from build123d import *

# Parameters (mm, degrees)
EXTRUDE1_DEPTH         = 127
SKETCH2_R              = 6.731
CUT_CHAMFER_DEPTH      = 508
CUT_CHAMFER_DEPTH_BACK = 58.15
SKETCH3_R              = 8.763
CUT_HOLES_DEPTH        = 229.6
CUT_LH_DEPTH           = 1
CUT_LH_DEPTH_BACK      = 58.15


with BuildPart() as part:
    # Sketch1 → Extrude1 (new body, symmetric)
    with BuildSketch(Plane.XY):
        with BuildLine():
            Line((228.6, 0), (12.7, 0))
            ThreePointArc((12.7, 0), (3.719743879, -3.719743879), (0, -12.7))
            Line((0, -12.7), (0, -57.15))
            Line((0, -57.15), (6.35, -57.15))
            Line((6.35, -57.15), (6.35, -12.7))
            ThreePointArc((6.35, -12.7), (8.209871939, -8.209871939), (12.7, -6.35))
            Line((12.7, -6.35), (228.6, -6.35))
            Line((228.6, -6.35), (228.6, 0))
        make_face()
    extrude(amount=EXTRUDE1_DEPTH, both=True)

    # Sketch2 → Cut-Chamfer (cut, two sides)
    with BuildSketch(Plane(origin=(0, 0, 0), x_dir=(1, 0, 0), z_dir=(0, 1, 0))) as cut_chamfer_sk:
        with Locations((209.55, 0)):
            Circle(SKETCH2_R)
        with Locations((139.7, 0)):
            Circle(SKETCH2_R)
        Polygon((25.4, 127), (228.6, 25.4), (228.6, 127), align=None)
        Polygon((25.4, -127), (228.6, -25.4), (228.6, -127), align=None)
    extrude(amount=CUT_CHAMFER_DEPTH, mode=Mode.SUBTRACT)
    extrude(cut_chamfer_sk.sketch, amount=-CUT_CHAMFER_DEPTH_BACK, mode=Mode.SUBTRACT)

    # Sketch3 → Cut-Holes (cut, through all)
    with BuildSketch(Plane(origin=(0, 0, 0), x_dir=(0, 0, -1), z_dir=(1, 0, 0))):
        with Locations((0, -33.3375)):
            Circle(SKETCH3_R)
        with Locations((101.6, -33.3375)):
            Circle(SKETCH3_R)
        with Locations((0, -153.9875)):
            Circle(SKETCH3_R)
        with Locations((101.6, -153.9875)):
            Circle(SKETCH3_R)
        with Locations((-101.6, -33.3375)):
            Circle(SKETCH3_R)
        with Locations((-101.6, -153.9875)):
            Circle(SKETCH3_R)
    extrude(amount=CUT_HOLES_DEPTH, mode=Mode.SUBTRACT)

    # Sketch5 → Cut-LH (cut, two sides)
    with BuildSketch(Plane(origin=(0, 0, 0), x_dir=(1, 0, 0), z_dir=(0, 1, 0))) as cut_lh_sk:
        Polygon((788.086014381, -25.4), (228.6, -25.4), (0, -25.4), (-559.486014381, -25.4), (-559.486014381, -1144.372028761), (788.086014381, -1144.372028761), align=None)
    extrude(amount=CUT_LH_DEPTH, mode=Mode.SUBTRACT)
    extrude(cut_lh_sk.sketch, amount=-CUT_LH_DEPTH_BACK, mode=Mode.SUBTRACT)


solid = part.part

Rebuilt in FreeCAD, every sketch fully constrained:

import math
import FreeCAD as App
import Part
import Sketcher

V = App.Vector
Q = App.Units.Quantity

doc = App.newDocument("Part")
body = doc.addObject("PartDesign::Body", "Body")

# Sketch on XY plane
sketch1 = body.newObject("Sketcher::SketchObject", "Sketch")
sketch1.AttachmentSupport = (doc.getObject("XY_Plane"), [""])
sketch1.MapMode = "FlatFace"
sketch1.addGeometry(Part.LineSegment(V(228.6, 0, 0), V(12.7, 0, 0)), False)
sketch1.addGeometry(Part.ArcOfCircle(Part.Circle(V(12.7, -12.7, 0), V(0, 0, 1), 12.7), math.radians(90), math.radians(180)), False)
sketch1.addGeometry(Part.LineSegment(V(0, -12.7, 0), V(0, -57.15, 0)), False)
sketch1.addGeometry(Part.LineSegment(V(0, -57.15, 0), V(6.35, -57.15, 0)), False)
sketch1.addGeometry(Part.LineSegment(V(6.35, -57.15, 0), V(6.35, -12.7, 0)), False)
sketch1.addGeometry(Part.ArcOfCircle(Part.Circle(V(12.7, -12.7, 0), V(0, 0, 1), 6.35), math.radians(90), math.radians(180)), False)
sketch1.addGeometry(Part.LineSegment(V(12.7, -6.35, 0), V(228.6, -6.35, 0)), False)
sketch1.addGeometry(Part.LineSegment(V(228.6, -6.35, 0), V(228.6, 0, 0)), False)
sketch1.addConstraint(Sketcher.Constraint("Tangent", 0, 2, 1, 1))
sketch1.addConstraint(Sketcher.Constraint("Tangent", 1, 2, 2, 1))
sketch1.addConstraint(Sketcher.Constraint("Coincident", 2, 2, 3, 1))
sketch1.addConstraint(Sketcher.Constraint("Coincident", 3, 2, 4, 1))
sketch1.addConstraint(Sketcher.Constraint("Tangent", 4, 2, 5, 2))
sketch1.addConstraint(Sketcher.Constraint("Tangent", 5, 1, 6, 1))
sketch1.addConstraint(Sketcher.Constraint("Coincident", 6, 2, 7, 1))
sketch1.addConstraint(Sketcher.Constraint("Coincident", 7, 2, 0, 1))
sketch1.addConstraint(Sketcher.Constraint("Horizontal", 0))
sketch1.addConstraint(Sketcher.Constraint("Vertical", 2))
sketch1.addConstraint(Sketcher.Constraint("Horizontal", 3))
sketch1.addConstraint(Sketcher.Constraint("Vertical", 4))
sketch1.addConstraint(Sketcher.Constraint("Horizontal", 6))
sketch1.addConstraint(Sketcher.Constraint("Vertical", 7))
sketch1.addConstraint(Sketcher.Constraint("Coincident", 5, 3, 1, 3))
sketch1.addConstraint(Sketcher.Constraint("PointOnObject", 0, 2, -1))
sketch1.addConstraint(Sketcher.Constraint("PointOnObject", 1, 2, -2))
sketch1.addConstraint(Sketcher.Constraint("Radius", 1, Q("0.5 in")))
sketch1.addConstraint(Sketcher.Constraint("Radius", 5, Q("0.25 in")))
sketch1.addConstraint(Sketcher.Constraint("DistanceX", 0, 2, 0, 1, Q("8.5 in")))
sketch1.addConstraint(Sketcher.Constraint("DistanceY", 2, 2, 2, 1, Q("1.75 in")))
pad1 = body.newObject("PartDesign::Pad", "Pad")
pad1.Profile = sketch1
pad1.Length = Q("10 in")
pad1.Midplane = True

# Sketch on XZ plane
sketch2 = body.newObject("Sketcher::SketchObject", "Sketch001")
sketch2.AttachmentSupport = (doc.getObject("XZ_Plane"), [""])
sketch2.MapMode = "FlatFace"
sketch2.addGeometry(Part.Circle(V(209.55, 0, 0), V(0, 0, 1), 6.731), False)
sketch2.addGeometry(Part.Circle(V(139.7, 0, 0), V(0, 0, 1), 6.731), False)
sketch2.addGeometry(Part.LineSegment(V(25.4, -127, 0), V(228.6, -25.4, 0)), False)
sketch2.addGeometry(Part.LineSegment(V(228.6, -25.4, 0), V(228.6, -127, 0)), False)
sketch2.addGeometry(Part.LineSegment(V(228.6, -127, 0), V(25.4, -127, 0)), False)
sketch2.addGeometry(Part.LineSegment(V(228.6, 25.4, 0), V(25.4, 127, 0)), False)
sketch2.addGeometry(Part.LineSegment(V(25.4, 127, 0), V(228.6, 127, 0)), False)
sketch2.addGeometry(Part.LineSegment(V(228.6, 127, 0), V(228.6, 25.4, 0)), False)
sketch2.addConstraint(Sketcher.Constraint("Coincident", 2, 2, 3, 1))
sketch2.addConstraint(Sketcher.Constraint("Coincident", 3, 2, 4, 1))
sketch2.addConstraint(Sketcher.Constraint("Coincident", 4, 2, 2, 1))
sketch2.addConstraint(Sketcher.Constraint("Coincident", 5, 2, 6, 1))
sketch2.addConstraint(Sketcher.Constraint("Coincident", 6, 2, 7, 1))
sketch2.addConstraint(Sketcher.Constraint("Coincident", 7, 2, 5, 1))
sketch2.addConstraint(Sketcher.Constraint("Vertical", 3))
sketch2.addConstraint(Sketcher.Constraint("Horizontal", 4))
sketch2.addConstraint(Sketcher.Constraint("Horizontal", 6))
sketch2.addConstraint(Sketcher.Constraint("Vertical", 7))
sketch2.addConstraint(Sketcher.Constraint("Equal", 0, 1))
sketch2.addConstraint(Sketcher.Constraint("Symmetric", 4, 2, 5, 2, -1))
sketch2.addConstraint(Sketcher.Constraint("Symmetric", 2, 2, 7, 2, -1))
sketch2.addConstraint(Sketcher.Constraint("PointOnObject", 0, 3, -1))
sketch2.addConstraint(Sketcher.Constraint("PointOnObject", 1, 3, -1))
sketch2.addConstraint(Sketcher.Constraint("Diameter", 0, Q("0.53 in")))
sketch2.addConstraint(Sketcher.Constraint("DistanceX", 4, 2, 4, 1, Q("8 in")))
sketch2.addConstraint(Sketcher.Constraint("DistanceY", 3, 2, 3, 1, Q("4 in")))
sketch2.addConstraint(Sketcher.Constraint("DistanceX", -1, 1, 2, 2, Q("9 in")))
sketch2.addConstraint(Sketcher.Constraint("DistanceY", 2, 2, -1, 1, Q("1 in")))
sketch2.addConstraint(Sketcher.Constraint("DistanceX", -1, 1, 1, 3, Q("5.5 in")))
sketch2.addConstraint(Sketcher.Constraint("DistanceX", -1, 1, 0, 3, Q("8.25 in")))
pocket1 = body.newObject("PartDesign::Pocket", "Pocket")
pocket1.Profile = sketch2
pocket1.Type = "ThroughAll"
pocket1.Midplane = True

# Sketch on YZ plane
sketch3 = body.newObject("Sketcher::SketchObject", "Sketch002")
sketch3.AttachmentSupport = (doc.getObject("YZ_Plane"), [""])
sketch3.MapMode = "FlatFace"
sketch3.addGeometry(Part.Circle(V(-33.3375, 0, 0), V(0, 0, 1), 8.763), False)
sketch3.addGeometry(Part.Circle(V(-33.3375, -101.6, 0), V(0, 0, 1), 8.763), False)
sketch3.addGeometry(Part.Circle(V(-153.9875, 0, 0), V(0, 0, 1), 8.763), False)
sketch3.addGeometry(Part.Circle(V(-153.9875, -101.6, 0), V(0, 0, 1), 8.763), False)
sketch3.addGeometry(Part.Circle(V(-33.3375, 101.6, 0), V(0, 0, 1), 8.763), False)
sketch3.addGeometry(Part.Circle(V(-153.9875, 101.6, 0), V(0, 0, 1), 8.763), False)
sketch3.addConstraint(Sketcher.Constraint("Equal", 0, 1))
sketch3.addConstraint(Sketcher.Constraint("Equal", 1, 2))
sketch3.addConstraint(Sketcher.Constraint("Equal", 2, 3))
sketch3.addConstraint(Sketcher.Constraint("Equal", 3, 4))
sketch3.addConstraint(Sketcher.Constraint("Equal", 4, 5))
sketch3.addConstraint(Sketcher.Constraint("Symmetric", 1, 3, 4, 3, -1))
sketch3.addConstraint(Sketcher.Constraint("Symmetric", 3, 3, 5, 3, -1))
sketch3.addConstraint(Sketcher.Constraint("PointOnObject", 0, 3, -1))
sketch3.addConstraint(Sketcher.Constraint("PointOnObject", 2, 3, -1))
sketch3.addConstraint(Sketcher.Constraint("Horizontal", 1, 3, 3, 3))
sketch3.addConstraint(Sketcher.Constraint("Vertical", 0, 3, 1, 3))
sketch3.addConstraint(Sketcher.Constraint("Vertical", 2, 3, 3, 3))
sketch3.addConstraint(Sketcher.Constraint("Diameter", 0, Q("0.69 in")))
sketch3.addConstraint(Sketcher.Constraint("DistanceY", 1, 3, -1, 1, Q("4 in")))
sketch3.addConstraint(Sketcher.Constraint("DistanceX", 2, 3, 0, 3, Q("4.75 in")))
sketch3.addConstraint(Sketcher.Constraint("DistanceX", 0, 3, -1, 1, Q("1.3125 in")))
pocket2 = body.newObject("PartDesign::Pocket", "Pocket001")
pocket2.Profile = sketch3
pocket2.Type = "ThroughAll"
pocket2.Reversed = True

# Sketch on XZ plane
sketch4 = body.newObject("Sketcher::SketchObject", "Sketch003")
sketch4.AttachmentSupport = (doc.getObject("XZ_Plane"), [""])
sketch4.MapMode = "FlatFace"
sketch4.addGeometry(Part.LineSegment(V(788.086014, 25.4, 0), V(-559.486014, 25.4, 0)), False)
sketch4.addGeometry(Part.LineSegment(V(-559.486014, 25.4, 0), V(-559.486014, 1144.372029, 0)), False)
sketch4.addGeometry(Part.LineSegment(V(-559.486014, 1144.372029, 0), V(788.086014, 1144.372029, 0)), False)
sketch4.addGeometry(Part.LineSegment(V(788.086014, 1144.372029, 0), V(788.086014, 25.4, 0)), False)
sketch4.addConstraint(Sketcher.Constraint("Coincident", 0, 2, 1, 1))
sketch4.addConstraint(Sketcher.Constraint("Coincident", 1, 2, 2, 1))
sketch4.addConstraint(Sketcher.Constraint("Coincident", 2, 2, 3, 1))
sketch4.addConstraint(Sketcher.Constraint("Coincident", 3, 2, 0, 1))
sketch4.addConstraint(Sketcher.Constraint("Horizontal", 0))
sketch4.addConstraint(Sketcher.Constraint("Vertical", 1))
sketch4.addConstraint(Sketcher.Constraint("Horizontal", 2))
sketch4.addConstraint(Sketcher.Constraint("Vertical", 3))
sketch4.addConstraint(Sketcher.Constraint("DistanceY", -1, 1, 0, 2, Q("1 in")))
sketch4.addConstraint(Sketcher.Constraint("DistanceX", 0, 2, 0, 1, 1347.572029))
sketch4.addConstraint(Sketcher.Constraint("DistanceY", 1, 1, 1, 2, 1118.972029))
sketch4.addConstraint(Sketcher.Constraint("DistanceX", 0, 2, -1, 1, 559.486014))
pocket3 = body.newObject("PartDesign::Pocket", "Pocket002")
pocket3.Profile = sketch4
pocket3.Type = "ThroughAll"
pocket3.Midplane = True

doc.recompute()
